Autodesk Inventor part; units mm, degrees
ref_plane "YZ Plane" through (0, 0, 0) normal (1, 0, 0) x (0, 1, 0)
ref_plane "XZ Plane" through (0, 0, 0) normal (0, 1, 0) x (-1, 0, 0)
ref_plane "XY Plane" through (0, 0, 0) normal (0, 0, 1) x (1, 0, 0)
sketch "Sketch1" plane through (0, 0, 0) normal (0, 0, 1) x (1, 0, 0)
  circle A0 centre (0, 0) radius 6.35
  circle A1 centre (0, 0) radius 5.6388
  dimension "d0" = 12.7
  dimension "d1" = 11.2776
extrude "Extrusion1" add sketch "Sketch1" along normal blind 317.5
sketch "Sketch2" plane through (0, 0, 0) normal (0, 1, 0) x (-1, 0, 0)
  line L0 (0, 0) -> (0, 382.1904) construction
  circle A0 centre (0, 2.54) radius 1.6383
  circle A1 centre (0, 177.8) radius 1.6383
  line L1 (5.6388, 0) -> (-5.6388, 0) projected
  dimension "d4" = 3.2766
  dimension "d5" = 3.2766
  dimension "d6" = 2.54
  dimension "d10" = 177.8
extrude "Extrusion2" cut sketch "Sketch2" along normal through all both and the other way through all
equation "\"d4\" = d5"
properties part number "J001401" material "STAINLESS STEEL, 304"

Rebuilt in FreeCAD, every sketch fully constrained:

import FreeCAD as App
import Part
import Sketcher

V = App.Vector
Q = App.Units.Quantity

doc = App.newDocument("Part")
params = doc.addObject("Spreadsheet::Sheet", "Params")
for row, (alias, value) in enumerate([
    ("sketch1_diameter", "0.5 in"),
    ("sketch1_diameter2", "0.444 in"),
    ("pad1_length", "12.5 in"),
    ("sketch2_diameter", "0.129 in"),
], start=1):
    params.set(f"A{row}", alias)
    params.set(f"B{row}", "=" + value)
    params.setAlias(f"B{row}", alias)

body = doc.addObject("PartDesign::Body", "Body")

sketch1 = body.newObject("Sketcher::SketchObject", "Sketch")
sketch1.AttachmentSupport = (doc.getObject("XY_Plane"), [""])
sketch1.MapMode = "FlatFace"
sketch1.addGeometry([
    Part.Circle(V(0, 0, 0), V(0, 0, 1), 6.35),
    Part.Circle(V(0, 0, 0), V(0, 0, 1), 5.6388),
], False)
sketch1.addConstraint([
    Sketcher.Constraint("Coincident", 0, 3, -1, 1),
    Sketcher.Constraint("Coincident", 1, 3, -1, 1),
    Sketcher.Constraint("Diameter", 0, Q("0.5 in")),
    Sketcher.Constraint("Diameter", 1, Q("0.444 in")),
])
sketch1.setExpression("Constraints[2]", "Params.sketch1_diameter")
sketch1.setExpression("Constraints[3]", "Params.sketch1_diameter2")
pad1 = body.newObject("PartDesign::Pad", "Pad")
pad1.Profile = sketch1
pad1.setExpression("Length", "Params.pad1_length")

sketch2 = body.newObject("Sketcher::SketchObject", "Sketch001")
sketch2.AttachmentSupport = (doc.getObject("XZ_Plane"), [""])
sketch2.MapMode = "FlatFace"
sketch2.addGeometry([
    Part.Circle(V(0, 2.54, 0), V(0, 0, 1), 1.6383),
    Part.Circle(V(0, 177.8, 0), V(0, 0, 1), 1.6383),
], False)
sketch2.addConstraint([
    Sketcher.Constraint("Equal", 0, 1),
    Sketcher.Constraint("PointOnObject", 0, 3, -2),
    Sketcher.Constraint("PointOnObject", 1, 3, -2),
    Sketcher.Constraint("Diameter", 0, Q("0.129 in")),
    Sketcher.Constraint("DistanceY", -1, 1, 1, 3, Q("7 in")),
    Sketcher.Constraint("DistanceY", -1, 1, 0, 3, Q("0.1 in")),
])
sketch2.setExpression("Constraints[3]", "Params.sketch2_diameter")
pocket1 = body.newObject("PartDesign::Pocket", "Pocket")
pocket1.Profile = sketch2
pocket1.Type = "ThroughAll"
pocket1.Midplane = True

doc.recompute()
